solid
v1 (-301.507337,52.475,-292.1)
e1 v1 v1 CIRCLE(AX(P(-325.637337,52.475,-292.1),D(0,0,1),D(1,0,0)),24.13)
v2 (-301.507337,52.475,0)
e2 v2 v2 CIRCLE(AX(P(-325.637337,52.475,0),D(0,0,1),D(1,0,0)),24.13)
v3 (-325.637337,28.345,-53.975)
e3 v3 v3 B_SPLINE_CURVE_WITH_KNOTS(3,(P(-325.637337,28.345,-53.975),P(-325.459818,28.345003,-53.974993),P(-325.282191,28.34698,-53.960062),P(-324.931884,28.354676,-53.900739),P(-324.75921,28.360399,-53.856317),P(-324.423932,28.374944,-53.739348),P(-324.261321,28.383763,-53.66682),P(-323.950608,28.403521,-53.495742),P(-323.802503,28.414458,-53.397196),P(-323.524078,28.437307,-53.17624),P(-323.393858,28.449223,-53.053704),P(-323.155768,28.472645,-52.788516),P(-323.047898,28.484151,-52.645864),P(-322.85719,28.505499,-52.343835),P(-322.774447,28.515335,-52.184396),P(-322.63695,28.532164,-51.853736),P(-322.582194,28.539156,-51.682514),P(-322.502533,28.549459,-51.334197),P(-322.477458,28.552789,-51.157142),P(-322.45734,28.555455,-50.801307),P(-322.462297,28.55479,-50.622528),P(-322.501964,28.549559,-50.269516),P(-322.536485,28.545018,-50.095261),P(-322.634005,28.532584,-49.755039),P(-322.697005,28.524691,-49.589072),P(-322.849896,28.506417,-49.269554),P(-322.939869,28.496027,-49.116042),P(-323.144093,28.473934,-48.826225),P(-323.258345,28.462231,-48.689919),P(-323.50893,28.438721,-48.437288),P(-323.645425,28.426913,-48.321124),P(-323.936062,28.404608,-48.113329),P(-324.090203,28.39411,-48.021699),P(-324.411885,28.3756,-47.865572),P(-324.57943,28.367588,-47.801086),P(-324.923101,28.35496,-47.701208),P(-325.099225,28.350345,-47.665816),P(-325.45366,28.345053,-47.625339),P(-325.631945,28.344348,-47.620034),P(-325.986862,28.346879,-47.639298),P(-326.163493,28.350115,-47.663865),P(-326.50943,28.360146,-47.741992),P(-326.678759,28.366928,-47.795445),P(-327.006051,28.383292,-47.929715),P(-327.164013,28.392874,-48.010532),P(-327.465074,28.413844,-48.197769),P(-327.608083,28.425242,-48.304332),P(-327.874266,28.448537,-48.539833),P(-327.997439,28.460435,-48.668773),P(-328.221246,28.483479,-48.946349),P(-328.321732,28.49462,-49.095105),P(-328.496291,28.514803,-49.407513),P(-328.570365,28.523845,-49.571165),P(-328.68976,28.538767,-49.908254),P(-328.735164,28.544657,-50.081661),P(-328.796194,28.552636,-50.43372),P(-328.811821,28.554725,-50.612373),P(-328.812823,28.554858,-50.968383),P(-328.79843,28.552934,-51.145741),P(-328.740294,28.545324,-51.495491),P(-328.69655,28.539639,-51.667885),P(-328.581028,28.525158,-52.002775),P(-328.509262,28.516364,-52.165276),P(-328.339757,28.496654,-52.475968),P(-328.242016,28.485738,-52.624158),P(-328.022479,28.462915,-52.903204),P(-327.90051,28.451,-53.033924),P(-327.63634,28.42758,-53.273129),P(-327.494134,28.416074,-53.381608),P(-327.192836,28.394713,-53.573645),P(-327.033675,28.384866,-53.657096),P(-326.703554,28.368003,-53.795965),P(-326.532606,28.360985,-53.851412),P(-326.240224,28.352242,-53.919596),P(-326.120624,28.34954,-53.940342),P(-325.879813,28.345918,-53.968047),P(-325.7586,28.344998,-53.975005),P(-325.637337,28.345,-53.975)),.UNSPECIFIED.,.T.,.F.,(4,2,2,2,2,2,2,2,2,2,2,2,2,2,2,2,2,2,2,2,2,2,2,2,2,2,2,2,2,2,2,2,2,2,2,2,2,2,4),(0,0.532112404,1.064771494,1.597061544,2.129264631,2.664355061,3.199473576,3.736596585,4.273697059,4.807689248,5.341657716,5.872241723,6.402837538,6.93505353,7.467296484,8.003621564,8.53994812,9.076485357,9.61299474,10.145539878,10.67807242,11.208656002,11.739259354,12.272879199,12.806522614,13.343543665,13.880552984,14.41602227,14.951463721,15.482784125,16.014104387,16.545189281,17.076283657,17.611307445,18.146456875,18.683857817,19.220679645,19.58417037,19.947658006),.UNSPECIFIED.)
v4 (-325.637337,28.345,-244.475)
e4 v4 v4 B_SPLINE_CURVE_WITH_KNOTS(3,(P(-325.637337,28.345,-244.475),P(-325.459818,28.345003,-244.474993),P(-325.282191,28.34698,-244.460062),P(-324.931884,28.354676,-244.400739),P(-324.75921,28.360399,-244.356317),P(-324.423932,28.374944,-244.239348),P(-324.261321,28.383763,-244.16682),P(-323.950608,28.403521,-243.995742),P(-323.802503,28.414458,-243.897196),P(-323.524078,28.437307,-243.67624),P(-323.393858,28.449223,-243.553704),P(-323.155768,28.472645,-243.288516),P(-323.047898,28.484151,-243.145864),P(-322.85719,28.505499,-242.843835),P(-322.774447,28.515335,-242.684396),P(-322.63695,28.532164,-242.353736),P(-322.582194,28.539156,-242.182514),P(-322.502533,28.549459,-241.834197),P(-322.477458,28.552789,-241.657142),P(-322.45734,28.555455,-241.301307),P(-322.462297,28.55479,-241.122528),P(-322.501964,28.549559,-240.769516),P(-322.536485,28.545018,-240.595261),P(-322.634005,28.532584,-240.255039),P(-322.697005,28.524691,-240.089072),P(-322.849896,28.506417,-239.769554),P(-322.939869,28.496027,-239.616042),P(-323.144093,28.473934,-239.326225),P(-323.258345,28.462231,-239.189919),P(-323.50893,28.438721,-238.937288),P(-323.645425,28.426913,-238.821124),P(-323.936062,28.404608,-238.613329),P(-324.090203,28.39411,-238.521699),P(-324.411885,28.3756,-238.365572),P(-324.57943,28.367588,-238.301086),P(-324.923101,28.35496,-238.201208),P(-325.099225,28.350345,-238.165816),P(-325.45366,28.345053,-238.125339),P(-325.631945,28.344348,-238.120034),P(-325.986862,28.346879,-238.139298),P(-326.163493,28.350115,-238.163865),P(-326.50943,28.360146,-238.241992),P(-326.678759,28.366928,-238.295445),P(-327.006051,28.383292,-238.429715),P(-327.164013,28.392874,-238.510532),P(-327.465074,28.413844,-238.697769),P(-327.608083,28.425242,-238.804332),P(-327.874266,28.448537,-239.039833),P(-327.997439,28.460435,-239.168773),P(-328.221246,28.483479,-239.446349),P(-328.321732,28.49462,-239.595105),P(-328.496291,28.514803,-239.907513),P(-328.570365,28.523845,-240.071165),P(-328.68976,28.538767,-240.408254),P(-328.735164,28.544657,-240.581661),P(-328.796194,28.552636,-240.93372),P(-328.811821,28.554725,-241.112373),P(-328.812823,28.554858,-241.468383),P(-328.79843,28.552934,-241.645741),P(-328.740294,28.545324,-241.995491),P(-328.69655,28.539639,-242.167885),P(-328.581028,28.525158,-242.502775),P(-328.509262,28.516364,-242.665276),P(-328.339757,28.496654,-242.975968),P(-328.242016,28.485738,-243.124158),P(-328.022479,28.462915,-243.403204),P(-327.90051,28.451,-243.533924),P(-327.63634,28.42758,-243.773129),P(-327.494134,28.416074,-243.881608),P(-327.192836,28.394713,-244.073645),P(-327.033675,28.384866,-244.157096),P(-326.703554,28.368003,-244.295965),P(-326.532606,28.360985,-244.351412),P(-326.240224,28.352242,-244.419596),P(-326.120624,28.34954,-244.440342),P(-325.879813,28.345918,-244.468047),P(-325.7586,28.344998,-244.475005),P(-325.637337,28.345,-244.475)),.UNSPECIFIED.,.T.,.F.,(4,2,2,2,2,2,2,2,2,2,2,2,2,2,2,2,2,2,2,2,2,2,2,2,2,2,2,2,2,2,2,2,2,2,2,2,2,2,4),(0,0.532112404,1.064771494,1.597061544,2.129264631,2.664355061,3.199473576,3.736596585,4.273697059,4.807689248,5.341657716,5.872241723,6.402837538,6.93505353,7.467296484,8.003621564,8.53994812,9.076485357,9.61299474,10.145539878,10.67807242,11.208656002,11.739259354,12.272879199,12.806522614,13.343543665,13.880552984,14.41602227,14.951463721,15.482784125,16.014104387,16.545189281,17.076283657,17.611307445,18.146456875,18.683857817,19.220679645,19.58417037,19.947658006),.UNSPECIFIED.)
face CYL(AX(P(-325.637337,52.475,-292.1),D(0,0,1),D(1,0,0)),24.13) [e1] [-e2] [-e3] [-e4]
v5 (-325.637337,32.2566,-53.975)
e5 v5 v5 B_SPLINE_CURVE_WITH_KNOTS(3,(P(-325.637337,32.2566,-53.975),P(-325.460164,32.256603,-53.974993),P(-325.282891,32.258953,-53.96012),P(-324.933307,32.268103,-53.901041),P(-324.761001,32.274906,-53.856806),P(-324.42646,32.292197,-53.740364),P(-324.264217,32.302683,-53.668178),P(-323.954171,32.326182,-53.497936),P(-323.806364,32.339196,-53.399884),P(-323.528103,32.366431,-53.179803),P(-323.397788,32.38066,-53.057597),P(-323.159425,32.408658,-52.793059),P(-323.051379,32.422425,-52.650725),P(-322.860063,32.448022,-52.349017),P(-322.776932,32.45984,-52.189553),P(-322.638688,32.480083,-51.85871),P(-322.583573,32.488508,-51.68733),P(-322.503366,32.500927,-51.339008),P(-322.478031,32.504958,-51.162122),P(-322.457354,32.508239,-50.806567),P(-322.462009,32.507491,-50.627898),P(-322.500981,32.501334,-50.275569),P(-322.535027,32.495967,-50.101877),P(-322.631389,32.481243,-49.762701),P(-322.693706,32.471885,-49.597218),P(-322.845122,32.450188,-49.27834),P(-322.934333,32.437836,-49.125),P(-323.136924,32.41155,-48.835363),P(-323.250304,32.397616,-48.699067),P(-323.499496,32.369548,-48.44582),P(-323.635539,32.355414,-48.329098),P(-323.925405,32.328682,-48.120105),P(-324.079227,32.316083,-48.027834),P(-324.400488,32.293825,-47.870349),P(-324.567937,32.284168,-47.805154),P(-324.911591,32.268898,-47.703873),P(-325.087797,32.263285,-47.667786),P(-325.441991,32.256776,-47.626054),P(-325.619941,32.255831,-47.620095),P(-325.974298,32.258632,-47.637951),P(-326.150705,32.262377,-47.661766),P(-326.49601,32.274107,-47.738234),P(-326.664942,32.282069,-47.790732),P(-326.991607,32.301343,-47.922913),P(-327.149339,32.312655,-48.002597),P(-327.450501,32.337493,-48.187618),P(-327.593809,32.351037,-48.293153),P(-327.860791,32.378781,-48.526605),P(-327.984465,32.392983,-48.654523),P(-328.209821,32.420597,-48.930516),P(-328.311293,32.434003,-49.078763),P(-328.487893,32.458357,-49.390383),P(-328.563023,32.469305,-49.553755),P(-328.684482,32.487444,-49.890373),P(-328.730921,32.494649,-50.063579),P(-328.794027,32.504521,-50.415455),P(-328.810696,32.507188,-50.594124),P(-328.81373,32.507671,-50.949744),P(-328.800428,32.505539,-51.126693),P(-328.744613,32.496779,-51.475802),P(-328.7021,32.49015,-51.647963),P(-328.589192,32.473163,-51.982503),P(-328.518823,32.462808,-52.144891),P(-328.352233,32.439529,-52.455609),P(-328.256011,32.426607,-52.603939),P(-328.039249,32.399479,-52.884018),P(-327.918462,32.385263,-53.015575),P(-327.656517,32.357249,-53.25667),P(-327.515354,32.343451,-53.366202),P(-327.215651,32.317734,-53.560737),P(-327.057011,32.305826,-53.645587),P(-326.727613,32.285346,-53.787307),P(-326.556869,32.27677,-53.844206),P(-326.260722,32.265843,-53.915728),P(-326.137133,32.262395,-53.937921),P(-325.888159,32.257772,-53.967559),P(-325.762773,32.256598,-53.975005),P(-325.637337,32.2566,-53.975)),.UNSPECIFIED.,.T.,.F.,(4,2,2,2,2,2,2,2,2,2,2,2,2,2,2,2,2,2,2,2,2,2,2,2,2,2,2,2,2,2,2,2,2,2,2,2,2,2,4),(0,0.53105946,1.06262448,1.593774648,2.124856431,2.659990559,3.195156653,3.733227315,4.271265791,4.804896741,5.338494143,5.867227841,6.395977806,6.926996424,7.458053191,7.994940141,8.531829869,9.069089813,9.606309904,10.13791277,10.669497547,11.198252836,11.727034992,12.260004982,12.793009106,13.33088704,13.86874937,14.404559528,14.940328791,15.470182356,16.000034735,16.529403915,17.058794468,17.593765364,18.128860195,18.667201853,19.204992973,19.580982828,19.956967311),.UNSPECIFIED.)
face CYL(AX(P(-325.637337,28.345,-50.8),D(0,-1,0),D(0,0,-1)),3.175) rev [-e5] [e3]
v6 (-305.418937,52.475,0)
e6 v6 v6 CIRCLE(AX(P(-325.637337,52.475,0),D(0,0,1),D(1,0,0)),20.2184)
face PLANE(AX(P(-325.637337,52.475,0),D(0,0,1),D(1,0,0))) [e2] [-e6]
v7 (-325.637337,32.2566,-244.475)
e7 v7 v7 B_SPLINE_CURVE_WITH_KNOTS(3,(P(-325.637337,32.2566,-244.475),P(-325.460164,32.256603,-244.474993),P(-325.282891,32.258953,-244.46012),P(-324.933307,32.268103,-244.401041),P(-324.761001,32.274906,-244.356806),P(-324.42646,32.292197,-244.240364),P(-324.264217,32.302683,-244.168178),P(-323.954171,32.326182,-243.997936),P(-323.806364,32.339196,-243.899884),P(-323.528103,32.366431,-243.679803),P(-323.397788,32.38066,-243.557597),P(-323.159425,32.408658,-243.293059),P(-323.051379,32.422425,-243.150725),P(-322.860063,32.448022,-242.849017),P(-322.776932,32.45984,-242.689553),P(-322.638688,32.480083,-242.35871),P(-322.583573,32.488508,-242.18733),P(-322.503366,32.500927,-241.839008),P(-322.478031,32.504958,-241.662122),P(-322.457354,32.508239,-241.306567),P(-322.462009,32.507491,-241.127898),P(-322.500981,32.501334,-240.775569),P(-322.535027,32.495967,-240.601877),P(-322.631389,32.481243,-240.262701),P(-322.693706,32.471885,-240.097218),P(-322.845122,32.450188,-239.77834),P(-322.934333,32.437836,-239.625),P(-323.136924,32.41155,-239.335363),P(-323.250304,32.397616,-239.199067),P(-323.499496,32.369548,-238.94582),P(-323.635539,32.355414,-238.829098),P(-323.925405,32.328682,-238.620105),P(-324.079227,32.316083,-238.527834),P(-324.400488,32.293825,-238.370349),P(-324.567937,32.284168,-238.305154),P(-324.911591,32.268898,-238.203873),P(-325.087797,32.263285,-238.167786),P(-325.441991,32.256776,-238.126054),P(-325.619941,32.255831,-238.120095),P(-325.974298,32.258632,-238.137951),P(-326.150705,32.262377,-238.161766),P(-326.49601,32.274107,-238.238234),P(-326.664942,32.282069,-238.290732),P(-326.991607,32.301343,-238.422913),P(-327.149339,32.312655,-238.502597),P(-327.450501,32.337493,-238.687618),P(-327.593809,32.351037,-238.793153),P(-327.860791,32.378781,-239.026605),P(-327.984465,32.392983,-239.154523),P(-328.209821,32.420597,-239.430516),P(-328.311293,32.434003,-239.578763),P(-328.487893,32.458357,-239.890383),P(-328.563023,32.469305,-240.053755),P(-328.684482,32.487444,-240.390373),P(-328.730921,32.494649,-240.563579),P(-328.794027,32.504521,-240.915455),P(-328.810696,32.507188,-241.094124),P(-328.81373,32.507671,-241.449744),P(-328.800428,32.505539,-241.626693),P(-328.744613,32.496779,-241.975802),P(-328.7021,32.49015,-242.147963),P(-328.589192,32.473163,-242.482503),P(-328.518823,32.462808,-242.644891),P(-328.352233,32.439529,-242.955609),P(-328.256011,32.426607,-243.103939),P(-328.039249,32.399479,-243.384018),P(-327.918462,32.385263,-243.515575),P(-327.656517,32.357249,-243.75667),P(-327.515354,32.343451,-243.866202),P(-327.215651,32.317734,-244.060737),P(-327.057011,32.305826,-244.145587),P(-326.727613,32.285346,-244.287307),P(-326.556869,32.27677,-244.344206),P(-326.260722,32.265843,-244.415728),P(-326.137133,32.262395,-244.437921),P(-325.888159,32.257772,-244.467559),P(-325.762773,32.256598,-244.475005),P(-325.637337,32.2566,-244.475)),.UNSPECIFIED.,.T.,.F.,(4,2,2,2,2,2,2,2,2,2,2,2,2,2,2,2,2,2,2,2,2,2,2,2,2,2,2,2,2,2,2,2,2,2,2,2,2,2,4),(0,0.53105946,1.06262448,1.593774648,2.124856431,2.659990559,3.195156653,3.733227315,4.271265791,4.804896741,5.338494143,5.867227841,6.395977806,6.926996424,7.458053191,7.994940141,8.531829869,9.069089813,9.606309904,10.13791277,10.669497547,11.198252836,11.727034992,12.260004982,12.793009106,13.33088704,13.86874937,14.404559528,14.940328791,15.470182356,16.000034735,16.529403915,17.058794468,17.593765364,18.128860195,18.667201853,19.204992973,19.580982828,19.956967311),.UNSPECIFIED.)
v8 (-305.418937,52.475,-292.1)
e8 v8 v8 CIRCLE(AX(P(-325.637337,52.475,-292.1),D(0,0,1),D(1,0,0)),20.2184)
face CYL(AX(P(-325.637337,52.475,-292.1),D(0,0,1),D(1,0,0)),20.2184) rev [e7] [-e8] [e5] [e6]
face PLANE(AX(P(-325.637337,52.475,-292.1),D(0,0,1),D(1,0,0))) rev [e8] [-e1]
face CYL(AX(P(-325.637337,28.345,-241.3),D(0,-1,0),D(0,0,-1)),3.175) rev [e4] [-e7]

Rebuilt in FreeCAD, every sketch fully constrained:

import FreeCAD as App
import Part
import Sketcher
from FreeCAD import Vector
Q = App.Units.Quantity

doc = App.newDocument("Part")
body = doc.addObject("PartDesign::Body", "Body")

# Sketch on XY plane
sketch1 = body.newObject("Sketcher::SketchObject", "Sketch")
sketch1.AttachmentSupport = (doc.getObject("XY_Plane"), [""])
sketch1.MapMode = "FlatFace"
sketch1.addGeometry([
    Part.Circle(Vector(-325.637337, 52.475, 0), Vector(0, 0, 1), 24.13),
    Part.Circle(Vector(-325.637337, 52.475, 0), Vector(0, 0, 1), 20.2184),
], False)
sketch1.addConstraint([
    Sketcher.Constraint("Coincident", 1, 3, 0, 3),
    Sketcher.Constraint("Diameter", 0, Q("1.9 in")),
    Sketcher.Constraint("Diameter", 1, Q("1.592 in")),
    Sketcher.Constraint("DistanceY", -1, 1, 0, 3, 52.475),
    Sketcher.Constraint("DistanceX", 0, 3, -1, 1, 325.637337),
])
pad1 = body.newObject("PartDesign::Pad", "Pad")
pad1.Profile = sketch1
pad1.Length = Q("11.5 in")
pad1.Reversed = True

# Sketch on XZ plane
sketch2 = body.newObject("Sketcher::SketchObject", "Sketch001")
sketch2.AttachmentSupport = (doc.getObject("XZ_Plane"), [""])
sketch2.MapMode = "FlatFace"
sketch2.AttachmentOffset = App.Placement(Vector(0, 0, -28.345), App.Rotation())
sketch2.addGeometry(Part.Circle(Vector(-325.637337, -50.8, 0), Vector(0, 0, 1), 3.175), False)
sketch2.addConstraint([
    Sketcher.Constraint("Diameter", 0, Q("0.25 in")),
    Sketcher.Constraint("DistanceY", 0, 3, -1, 1, Q("2 in")),
    Sketcher.Constraint("DistanceX", 0, 3, -1, 1, 325.637337),
])
pocket1 = body.newObject("PartDesign::Pocket", "Pocket")
pocket1.Profile = sketch2
pocket1.Length = 4.162449

# Sketch on XZ plane
sketch3 = body.newObject("Sketcher::SketchObject", "Sketch002")
sketch3.AttachmentSupport = (doc.getObject("XZ_Plane"), [""])
sketch3.MapMode = "FlatFace"
sketch3.AttachmentOffset = App.Placement(Vector(0, 0, -28.345), App.Rotation())
sketch3.addGeometry(Part.Circle(Vector(-325.637337, -241.3, 0), Vector(0, 0, 1), 3.175), False)
sketch3.addConstraint([
    Sketcher.Constraint("Diameter", 0, Q("0.25 in")),
    Sketcher.Constraint("DistanceY", 0, 3, -1, 1, Q("9.5 in")),
    Sketcher.Constraint("DistanceX", 0, 3, -1, 1, 325.637337),
])
pocket2 = body.newObject("PartDesign::Pocket", "Pocket001")
pocket2.Profile = sketch3
pocket2.Length = 4.162449

doc.recompute()
